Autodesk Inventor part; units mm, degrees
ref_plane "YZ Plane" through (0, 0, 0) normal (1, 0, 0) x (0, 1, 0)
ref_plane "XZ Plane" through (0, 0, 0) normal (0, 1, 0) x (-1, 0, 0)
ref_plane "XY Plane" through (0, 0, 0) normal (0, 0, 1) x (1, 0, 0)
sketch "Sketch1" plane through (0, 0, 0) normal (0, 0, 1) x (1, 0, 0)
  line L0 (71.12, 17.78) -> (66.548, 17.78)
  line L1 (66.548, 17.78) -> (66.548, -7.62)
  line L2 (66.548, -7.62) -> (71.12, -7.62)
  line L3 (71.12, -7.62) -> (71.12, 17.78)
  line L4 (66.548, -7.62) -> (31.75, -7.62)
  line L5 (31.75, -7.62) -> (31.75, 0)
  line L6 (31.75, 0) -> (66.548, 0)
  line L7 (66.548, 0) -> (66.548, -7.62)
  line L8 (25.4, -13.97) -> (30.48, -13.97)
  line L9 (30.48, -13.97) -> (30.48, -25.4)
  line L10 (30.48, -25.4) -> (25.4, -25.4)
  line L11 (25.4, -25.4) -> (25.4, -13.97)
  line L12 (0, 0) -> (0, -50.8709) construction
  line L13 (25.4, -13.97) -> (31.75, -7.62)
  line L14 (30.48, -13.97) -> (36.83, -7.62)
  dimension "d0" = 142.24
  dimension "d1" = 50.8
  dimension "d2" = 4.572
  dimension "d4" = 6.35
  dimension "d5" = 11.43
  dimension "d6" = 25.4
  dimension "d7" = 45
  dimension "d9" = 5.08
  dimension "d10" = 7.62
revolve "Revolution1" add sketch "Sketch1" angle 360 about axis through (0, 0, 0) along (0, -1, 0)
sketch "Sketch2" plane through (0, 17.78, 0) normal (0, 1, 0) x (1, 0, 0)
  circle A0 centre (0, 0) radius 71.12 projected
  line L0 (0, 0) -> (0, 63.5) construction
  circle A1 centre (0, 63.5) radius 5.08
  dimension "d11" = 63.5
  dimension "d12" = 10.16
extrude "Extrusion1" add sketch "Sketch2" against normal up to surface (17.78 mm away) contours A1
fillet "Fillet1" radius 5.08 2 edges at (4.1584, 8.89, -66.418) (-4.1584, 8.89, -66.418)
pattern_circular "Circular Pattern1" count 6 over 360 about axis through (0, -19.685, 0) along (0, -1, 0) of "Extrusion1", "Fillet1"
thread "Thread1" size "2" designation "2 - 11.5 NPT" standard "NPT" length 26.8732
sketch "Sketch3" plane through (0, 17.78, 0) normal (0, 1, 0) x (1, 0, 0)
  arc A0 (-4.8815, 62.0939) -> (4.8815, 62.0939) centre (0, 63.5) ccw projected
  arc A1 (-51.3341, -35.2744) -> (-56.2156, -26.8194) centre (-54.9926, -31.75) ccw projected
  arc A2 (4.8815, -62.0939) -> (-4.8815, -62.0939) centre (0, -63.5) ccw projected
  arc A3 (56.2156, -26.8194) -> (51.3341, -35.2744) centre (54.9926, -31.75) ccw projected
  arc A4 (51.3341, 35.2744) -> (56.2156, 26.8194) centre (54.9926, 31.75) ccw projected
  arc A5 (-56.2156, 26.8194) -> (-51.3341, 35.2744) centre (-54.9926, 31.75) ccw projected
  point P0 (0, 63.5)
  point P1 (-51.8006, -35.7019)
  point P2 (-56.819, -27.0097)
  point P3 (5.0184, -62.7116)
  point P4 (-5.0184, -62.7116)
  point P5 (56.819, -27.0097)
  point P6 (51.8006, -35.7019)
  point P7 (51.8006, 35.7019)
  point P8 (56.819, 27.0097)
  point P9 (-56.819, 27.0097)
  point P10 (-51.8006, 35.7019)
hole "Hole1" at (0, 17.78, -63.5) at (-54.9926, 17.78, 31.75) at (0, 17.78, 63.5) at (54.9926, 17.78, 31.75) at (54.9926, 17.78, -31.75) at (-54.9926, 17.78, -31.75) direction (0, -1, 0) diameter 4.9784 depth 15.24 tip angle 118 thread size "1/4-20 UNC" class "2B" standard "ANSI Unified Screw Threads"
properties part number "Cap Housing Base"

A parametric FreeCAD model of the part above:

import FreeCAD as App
import Part
import Sketcher

V = App.Vector
Q = App.Units.Quantity


def edges_at(feature, points):
    """Names of the edges that pass closest to the given points."""
    edges = feature.Shape.Edges
    near = lambda p: min(range(len(edges)), key=lambda i: edges[i].distToShape(Part.Vertex(*p))[0])
    return sorted({f"Edge{near(p) + 1}" for p in points})

doc = App.newDocument("Part")
body = doc.addObject("PartDesign::Body", "Body")

sketch1 = doc.addObject("Sketcher::SketchObject", "Sketch")
body.addObject(sketch1)
sketch1.AttachmentSupport = (doc.XY_Plane, [""])
sketch1.MapMode = "FlatFace"
sketch1.addGeometry([
    Part.LineSegment(V(71.1, -7.6, 0), V(71.1, 17.8, 0)),
    Part.LineSegment(V(71.1, 17.8, 0), V(66.5, 17.8, 0)),
    Part.LineSegment(V(66.5, 17.8, 0), V(66.5, 0, 0)),
    Part.LineSegment(V(66.5, 0, 0), V(31.8, 0, 0)),
    Part.LineSegment(V(31.8, 0, 0), V(31.8, -7.6, 0)),
    Part.LineSegment(V(31.8, -7.6, 0), V(25.4, -14, 0)),
    Part.LineSegment(V(25.4, -14, 0), V(25.4, -25.4, 0)),
    Part.LineSegment(V(25.4, -25.4, 0), V(30.5, -25.4, 0)),
    Part.LineSegment(V(30.5, -25.4, 0), V(30.5, -14, 0)),
    Part.LineSegment(V(30.5, -14, 0), V(36.8, -7.6, 0)),
    Part.LineSegment(V(36.8, -7.6, 0), V(71.1, -7.6, 0)),
], False)
sketch1.addConstraint([
    Sketcher.Constraint("Coincident", 0, 2, 1, 1),
    Sketcher.Constraint("Coincident", 1, 2, 2, 1),
    Sketcher.Constraint("Coincident", 2, 2, 3, 1),
    Sketcher.Constraint("Coincident", 3, 2, 4, 1),
    Sketcher.Constraint("Coincident", 4, 2, 5, 1),
    Sketcher.Constraint("Coincident", 5, 2, 6, 1),
    Sketcher.Constraint("Coincident", 6, 2, 7, 1),
    Sketcher.Constraint("Coincident", 7, 2, 8, 1),
    Sketcher.Constraint("Coincident", 8, 2, 9, 1),
    Sketcher.Constraint("Coincident", 9, 2, 10, 1),
    Sketcher.Constraint("Coincident", 10, 2, 0, 1),
    Sketcher.Constraint("Vertical", 0),
    Sketcher.Constraint("Horizontal", 1),
    Sketcher.Constraint("Vertical", 2),
    Sketcher.Constraint("Horizontal", 3),
    Sketcher.Constraint("Vertical", 4),
    Sketcher.Constraint("Vertical", 6),
    Sketcher.Constraint("Horizontal", 7),
    Sketcher.Constraint("Vertical", 8),
    Sketcher.Constraint("Horizontal", 10),
    Sketcher.Constraint("PointOnObject", 2, 2, -1),
    Sketcher.Constraint("Parallel", 5, 9),
    Sketcher.Constraint("Horizontal", 5, 2, 8, 2),
    Sketcher.Constraint("Horizontal", 4, 2, 9, 2),
    Sketcher.Constraint("DistanceY", 0, 1, 0, 2, Q("1 in")),
    Sketcher.Constraint("DistanceX", 7, 1, 7, 2, Q("0.2 in")),
    Sketcher.Constraint("DistanceY", 4, 2, 4, 1, Q("0.3 in")),
    Sketcher.Constraint("DistanceX", -1, 1, 5, 2, Q("1 in")),
    Sketcher.Constraint("DistanceY", 6, 2, -1, 1, Q("1 in")),
    Sketcher.Constraint("Angle", 9, Q("45 deg")),
    Sketcher.Constraint("DistanceX", 1, 2, 1, 1, Q("0.18 in")),
    Sketcher.Constraint("DistanceY", 6, 2, 6, 1, Q("0.45 in")),
    Sketcher.Constraint("DistanceX", 3, 2, 3, 1, Q("1.37 in")),
])
revolution = doc.addObject("PartDesign::Revolution", "Revolution")
body.addObject(revolution)
revolution.Profile = sketch1
revolution.ReferenceAxis = (sketch1, ["V_Axis"])
revolution.Angle = 360

sketch2 = doc.addObject("Sketcher::SketchObject", "Sketch001")
body.addObject(sketch2)
sketch2.AttachmentSupport = (doc.XZ_Plane, [""])
sketch2.MapMode = "FlatFace"
sketch2.AttachmentOffset = App.Placement(V(0, 0, -0.7 * 25.4), App.Rotation())
sketch2.addGeometry(Part.Circle(V(0, -64, 0), V(0, 0, 1), 5), False)
sketch2.addConstraint([
    Sketcher.Constraint("PointOnObject", 0, 3, -2),
    Sketcher.Constraint("Diameter", 0, Q("0.4 in")),
    Sketcher.Constraint("DistanceY", 0, 3, -1, 1, Q("2.5 in")),
])
pad1 = doc.addObject("PartDesign::Pad", "Pad")
body.addObject(pad1)
pad1.Profile = sketch2
pad1.Length = Q("0.7 in")
doc.recompute()

fillet = doc.addObject("PartDesign::Fillet", "Fillet")
body.addObject(fillet)
fillet.Base = (pad1, edges_at(pad1, [(4.158, 8.89, -66.418), (-4.158, 8.89, -66.418)]))
fillet.Radius = Q("0.2 in")
doc.recompute()

polarpattern = doc.addObject("PartDesign::PolarPattern", "PolarPattern")
body.addObject(polarpattern)
polarpattern.Originals = [pad1, fillet]
polarpattern.Axis = (doc.Y_Axis, [""])
polarpattern.Angle = 360
polarpattern.Occurrences = 6
body.Tip = polarpattern

sketch3 = doc.addObject("Sketcher::SketchObject", "Sketch002")
body.addObject(sketch3)
sketch3.AttachmentSupport = (doc.XZ_Plane, [""])
sketch3.MapMode = "FlatFace"
sketch3.AttachmentOffset = App.Placement(V(0, 0, -0.7 * 25.4), App.Rotation())
sketch3.addGeometry([
    Part.Circle(V(0, -63.5, 0), V(0, 0, 1), 2.5),
    Part.Circle(V(-55, 31.8, 0), V(0, 0, 1), 2.5),
    Part.Circle(V(0, 63.5, 0), V(0, 0, 1), 2.5),
    Part.Circle(V(55, 31.8, 0), V(0, 0, 1), 2.5),
    Part.Circle(V(55, -31.8, 0), V(0, 0, 1), 2.5),
    Part.Circle(V(-55, -31.8, 0), V(0, 0, 1), 2.5),
], False)
sketch3.addConstraint([
    Sketcher.Constraint("Equal", 0, 1),
    Sketcher.Constraint("Equal", 1, 2),
    Sketcher.Constraint("Equal", 2, 3),
    Sketcher.Constraint("Equal", 3, 4),
    Sketcher.Constraint("Equal", 4, 5),
    Sketcher.Constraint("Symmetric", 0, 3, 2, 3, -1, 1),
    Sketcher.Constraint("Symmetric", 1, 3, 4, 3, -1, 1),
    Sketcher.Constraint("Symmetric", 3, 3, 5, 3, -1, 1),
    Sketcher.Constraint("Symmetric", 1, 3, 3, 3, -2),
    Sketcher.Constraint("PointOnObject", 0, 3, -2),
    Sketcher.Constraint("Diameter", 0, Q("0.196 in")),
    Sketcher.Constraint("DistanceY", 0, 3, 2, 3, Q("5 in")),
    Sketcher.Constraint("DistanceY", 4, 3, 3, 3, Q("2.5 in")),
    Sketcher.Constraint("DistanceX", 1, 3, -1, 1, 54.9926),
])
doc.recompute()
hole = doc.addObject("PartDesign::Hole", "Hole")
body.addObject(hole)
hole.Profile = sketch3
hole.ThreadType = "None"
hole.Diameter = Q("0.196 in")
hole.DepthType = "Dimension"
hole.Depth = Q("0.6 in")
hole.DrillPoint = "Angled"
hole.DrillPointAngle = 118
hole.Reversed = True

doc.recompute()
